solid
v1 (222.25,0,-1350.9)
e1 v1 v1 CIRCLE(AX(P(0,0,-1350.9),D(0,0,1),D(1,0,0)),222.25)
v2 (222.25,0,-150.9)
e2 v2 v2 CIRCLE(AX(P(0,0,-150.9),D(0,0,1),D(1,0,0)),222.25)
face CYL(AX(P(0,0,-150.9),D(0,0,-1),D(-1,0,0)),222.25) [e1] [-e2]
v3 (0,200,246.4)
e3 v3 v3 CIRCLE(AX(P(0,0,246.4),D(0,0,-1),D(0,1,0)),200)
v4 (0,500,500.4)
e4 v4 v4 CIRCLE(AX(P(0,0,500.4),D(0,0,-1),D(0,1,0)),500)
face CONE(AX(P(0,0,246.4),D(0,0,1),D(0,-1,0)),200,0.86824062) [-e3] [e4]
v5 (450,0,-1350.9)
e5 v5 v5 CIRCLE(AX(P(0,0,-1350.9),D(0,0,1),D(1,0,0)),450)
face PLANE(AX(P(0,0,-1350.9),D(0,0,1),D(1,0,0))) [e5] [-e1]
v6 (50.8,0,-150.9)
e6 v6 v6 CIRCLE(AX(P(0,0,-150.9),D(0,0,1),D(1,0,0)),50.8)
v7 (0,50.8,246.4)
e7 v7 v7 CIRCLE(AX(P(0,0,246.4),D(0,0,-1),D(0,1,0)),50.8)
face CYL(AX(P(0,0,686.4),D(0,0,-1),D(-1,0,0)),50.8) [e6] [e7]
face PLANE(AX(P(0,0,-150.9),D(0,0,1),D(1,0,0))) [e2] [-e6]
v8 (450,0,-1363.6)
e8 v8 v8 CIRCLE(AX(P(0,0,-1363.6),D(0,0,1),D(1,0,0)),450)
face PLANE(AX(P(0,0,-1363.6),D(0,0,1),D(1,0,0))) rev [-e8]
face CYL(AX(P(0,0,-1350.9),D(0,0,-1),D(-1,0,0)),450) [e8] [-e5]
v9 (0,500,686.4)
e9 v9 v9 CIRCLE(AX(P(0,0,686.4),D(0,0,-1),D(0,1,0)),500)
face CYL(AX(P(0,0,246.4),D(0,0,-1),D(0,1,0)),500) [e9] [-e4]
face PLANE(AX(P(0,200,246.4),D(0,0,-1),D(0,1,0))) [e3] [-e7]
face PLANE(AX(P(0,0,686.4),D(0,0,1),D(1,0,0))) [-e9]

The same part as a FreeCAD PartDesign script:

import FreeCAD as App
import Part
import Sketcher

V = App.Vector
Q = App.Units.Quantity


def add_polygon(sketch, points):
    """Adds a closed chain of lines whose ends are joined by coincident constraints."""
    first, n = sketch.GeometryCount, len(points)
    for a, b in zip(points, points[1:] + points[:1]):
        sketch.addGeometry(Part.LineSegment(App.Vector(*a, 0), App.Vector(*b, 0)), False)
    for i in range(n):
        sketch.addConstraint(Sketcher.Constraint("Coincident", first + i, 2, first + (i + 1) % n, 1))

doc = App.newDocument("Part")
params = doc.addObject("Spreadsheet::Sheet", "Params")
for row, (alias, value) in enumerate([
    ("sketch1_diameter", "101.6 mm"),
    ("pad1_length", "686.4 mm"),
    ("pad1_length2", "1363.6 mm"),
    ("sketch2_diameter", "900 mm"),
    ("pad2_length", "12.7 mm"),
    ("sketch3_diameter", "444.5 mm"),
    ("pad3_length", "1200 mm"),
    ("sketch4_width", "500 mm"),
    ("sketch4_width2", "200 mm"),
    ("sketch4_height", "440 mm"),
    ("sketch4_height2", "186 mm"),
    ("revolution_angle", "360 deg"),
], start=1):
    params.set(f"A{row}", alias)
    params.set(f"B{row}", "=" + value)
    params.setAlias(f"B{row}", alias)

body = doc.addObject("PartDesign::Body", "Body")

sketch1 = body.newObject("Sketcher::SketchObject", "Sketch")
sketch1.AttachmentSupport = (doc.getObject("XY_Plane"), [""])
sketch1.MapMode = "FlatFace"
sketch1.addGeometry(Part.Circle(V(0, 0, 0), V(0, 0, 1), 50.8), False)
sketch1.addConstraint(Sketcher.Constraint("Coincident", 0, 3, -1, 1))
sketch1.addConstraint(Sketcher.Constraint("Diameter", 0, Q("101.6 mm")))
sketch1.setExpression("Constraints[1]", "Params.sketch1_diameter")
pad1 = body.newObject("PartDesign::Pad", "Pad")
pad1.Profile = sketch1
pad1.Type = "TwoLengths"
pad1.setExpression("Length", "Params.pad1_length")
pad1.setExpression("Length2", "Params.pad1_length2")

sketch2 = body.newObject("Sketcher::SketchObject", "Sketch001")
sketch2.AttachmentSupport = (doc.getObject("XY_Plane"), [""])
sketch2.MapMode = "FlatFace"
sketch2.AttachmentOffset = App.Placement(V(0, 0, -1363.6), App.Rotation())
sketch2.addGeometry(Part.Circle(V(0, 0, 0), V(0, 0, 1), 450), False)
sketch2.addConstraint(Sketcher.Constraint("Coincident", 0, 3, -1, 1))
sketch2.addConstraint(Sketcher.Constraint("Diameter", 0, Q("900 mm")))
sketch2.setExpression("Constraints[1]", "Params.sketch2_diameter")
pad2 = body.newObject("PartDesign::Pad", "Pad001")
pad2.Profile = sketch2
pad2.setExpression("Length", "Params.pad2_length")

sketch3 = body.newObject("Sketcher::SketchObject", "Sketch002")
sketch3.AttachmentSupport = (doc.getObject("XY_Plane"), [""])
sketch3.MapMode = "FlatFace"
sketch3.AttachmentOffset = App.Placement(V(0, 0, -1350.9), App.Rotation())
sketch3.addGeometry(Part.Circle(V(0, 0, 0), V(0, 0, 1), 222.25), False)
sketch3.addConstraint(Sketcher.Constraint("Coincident", 0, 3, -1, 1))
sketch3.addConstraint(Sketcher.Constraint("Diameter", 0, Q("444.5 mm")))
sketch3.setExpression("Constraints[1]", "Params.sketch3_diameter")
pad3 = body.newObject("PartDesign::Pad", "Pad002")
pad3.Profile = sketch3
pad3.setExpression("Length", "Params.pad3_length")

sketch4 = body.newObject("Sketcher::SketchObject", "Sketch003")
sketch4.AttachmentSupport = (doc.getObject("YZ_Plane"), [""])
sketch4.MapMode = "FlatFace"
add_polygon(sketch4, [(500, 686.4), (0, 686.4), (0, 246.4), (200, 246.4), (500, 500.4)])
sketch4.addConstraint(Sketcher.Constraint("Horizontal", 0))
sketch4.addConstraint(Sketcher.Constraint("Vertical", 1))
sketch4.addConstraint(Sketcher.Constraint("Horizontal", 2))
sketch4.addConstraint(Sketcher.Constraint("Vertical", 4))
sketch4.addConstraint(Sketcher.Constraint("PointOnObject", 0, 2, -2))
sketch4.addConstraint(Sketcher.Constraint("DistanceX", 0, 2, 0, 1, Q("500 mm")))
sketch4.addConstraint(Sketcher.Constraint("DistanceX", 2, 1, 2, 2, Q("200 mm")))
sketch4.addConstraint(Sketcher.Constraint("DistanceY", 1, 2, 1, 1, Q("440 mm")))
sketch4.addConstraint(Sketcher.Constraint("DistanceY", 4, 1, 4, 2, Q("186 mm")))
sketch4.addConstraint(Sketcher.Constraint("DistanceY", -1, 1, 0, 2, Q("686.4 mm")))
sketch4.setExpression("Constraints[10]", "Params.sketch4_width")
sketch4.setExpression("Constraints[11]", "Params.sketch4_width2")
sketch4.setExpression("Constraints[12]", "Params.sketch4_height")
sketch4.setExpression("Constraints[13]", "Params.sketch4_height2")
revolution = body.newObject("PartDesign::Revolution", "Revolution")
revolution.Profile = sketch4
revolution.ReferenceAxis = (sketch4, ["V_Axis"])
revolution.setExpression("Angle", "Params.revolution_angle")

doc.recompute()
